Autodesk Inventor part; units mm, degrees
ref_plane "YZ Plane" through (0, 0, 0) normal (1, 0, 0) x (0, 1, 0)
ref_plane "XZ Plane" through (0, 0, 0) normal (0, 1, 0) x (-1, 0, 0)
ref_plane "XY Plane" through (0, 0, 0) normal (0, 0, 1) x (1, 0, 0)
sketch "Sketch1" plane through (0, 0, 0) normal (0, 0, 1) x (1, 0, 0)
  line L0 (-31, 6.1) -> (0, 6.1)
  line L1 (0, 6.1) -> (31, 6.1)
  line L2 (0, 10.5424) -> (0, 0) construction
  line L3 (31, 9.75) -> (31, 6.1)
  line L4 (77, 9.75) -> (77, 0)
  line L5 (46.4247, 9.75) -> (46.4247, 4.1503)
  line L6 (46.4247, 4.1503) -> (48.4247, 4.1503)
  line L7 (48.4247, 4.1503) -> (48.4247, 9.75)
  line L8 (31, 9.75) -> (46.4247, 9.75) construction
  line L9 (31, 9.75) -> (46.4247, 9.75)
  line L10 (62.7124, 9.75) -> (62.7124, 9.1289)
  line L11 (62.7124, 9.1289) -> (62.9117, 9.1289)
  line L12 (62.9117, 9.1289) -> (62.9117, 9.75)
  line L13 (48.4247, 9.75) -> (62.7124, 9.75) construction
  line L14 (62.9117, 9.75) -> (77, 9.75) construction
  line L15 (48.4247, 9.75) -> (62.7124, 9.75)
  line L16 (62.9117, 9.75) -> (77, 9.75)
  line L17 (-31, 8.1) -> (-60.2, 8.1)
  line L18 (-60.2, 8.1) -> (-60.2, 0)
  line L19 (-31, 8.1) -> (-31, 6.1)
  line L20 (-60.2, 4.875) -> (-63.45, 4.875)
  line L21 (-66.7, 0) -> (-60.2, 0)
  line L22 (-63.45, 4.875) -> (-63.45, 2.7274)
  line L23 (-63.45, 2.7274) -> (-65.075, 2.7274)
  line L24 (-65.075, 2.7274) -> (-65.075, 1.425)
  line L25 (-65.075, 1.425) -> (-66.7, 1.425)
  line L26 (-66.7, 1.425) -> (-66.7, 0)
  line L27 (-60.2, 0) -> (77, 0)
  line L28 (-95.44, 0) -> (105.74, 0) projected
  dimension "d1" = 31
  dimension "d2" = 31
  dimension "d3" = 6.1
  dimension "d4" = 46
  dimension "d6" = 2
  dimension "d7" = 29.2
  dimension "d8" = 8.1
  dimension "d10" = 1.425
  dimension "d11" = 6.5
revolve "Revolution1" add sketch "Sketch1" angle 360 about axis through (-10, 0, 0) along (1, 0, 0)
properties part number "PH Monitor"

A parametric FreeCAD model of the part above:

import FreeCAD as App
import Part
import Sketcher
from FreeCAD import Vector

doc = App.newDocument("Part")
body = doc.addObject("PartDesign::Body", "Body")

# Sketch on XY plane
sketch1 = doc.addObject("Sketcher::SketchObject", "Sketch")
body.addObject(sketch1)
sketch1.AttachmentSupport = (doc.XY_Plane, [""])
sketch1.MapMode = "FlatFace"
sketch1.addGeometry([
    Part.LineSegment(Vector(-31, 6.1, 0), Vector(-31, 8.1, 0)),  # 0
    Part.LineSegment(Vector(-31, 8.1, 0), Vector(-60.2, 8.1, 0)),  # 1
    Part.LineSegment(Vector(-60.2, 8.1, 0), Vector(-60.2, 4.875, 0)),  # 2
    Part.LineSegment(Vector(-60.2, 4.875, 0), Vector(-63.45, 4.875, 0)),  # 3
    Part.LineSegment(Vector(-63.45, 4.875, 0), Vector(-63.45, 2.7274, 0)),  # 4
    Part.LineSegment(Vector(-63.45, 2.7274, 0), Vector(-65.075, 2.7274, 0)),  # 5
    Part.LineSegment(Vector(-65.075, 2.7274, 0), Vector(-65.075, 1.425, 0)),  # 6
    Part.LineSegment(Vector(-65.075, 1.425, 0), Vector(-66.7, 1.425, 0)),  # 7
    Part.LineSegment(Vector(-66.7, 1.425, 0), Vector(-66.7, 0, 0)),  # 8
    Part.LineSegment(Vector(-66.7, 0, 0), Vector(77, 0, 0)),  # 9
    Part.LineSegment(Vector(77, 0, 0), Vector(77, 9.75, 0)),  # 10
    Part.LineSegment(Vector(77, 9.75, 0), Vector(62.9117, 9.75, 0)),  # 11
    Part.LineSegment(Vector(62.9117, 9.75, 0), Vector(62.9117, 9.1289, 0)),  # 12
    Part.LineSegment(Vector(62.9117, 9.1289, 0), Vector(62.7124, 9.1289, 0)),  # 13
    Part.LineSegment(Vector(62.7124, 9.1289, 0), Vector(62.7124, 9.75, 0)),  # 14
    Part.LineSegment(Vector(62.7124, 9.75, 0), Vector(48.4247, 9.75, 0)),  # 15
    Part.LineSegment(Vector(48.4247, 9.75, 0), Vector(48.4247, 4.1503, 0)),  # 16
    Part.LineSegment(Vector(48.4247, 4.1503, 0), Vector(46.4247, 4.1503, 0)),  # 17
    Part.LineSegment(Vector(46.4247, 4.1503, 0), Vector(46.4247, 9.75, 0)),  # 18
    Part.LineSegment(Vector(46.4247, 9.75, 0), Vector(31, 9.75, 0)),  # 19
    Part.LineSegment(Vector(31, 9.75, 0), Vector(31, 6.1, 0)),  # 20
    Part.LineSegment(Vector(31, 6.1, 0), Vector(-31, 6.1, 0)),  # 21
], False)
sketch1.addConstraint([
    Sketcher.Constraint("Coincident", 0, 2, 1, 1),
    Sketcher.Constraint("Coincident", 1, 2, 2, 1),
    Sketcher.Constraint("Coincident", 2, 2, 3, 1),
    Sketcher.Constraint("Coincident", 3, 2, 4, 1),
    Sketcher.Constraint("Coincident", 4, 2, 5, 1),
    Sketcher.Constraint("Coincident", 5, 2, 6, 1),
    Sketcher.Constraint("Coincident", 6, 2, 7, 1),
    Sketcher.Constraint("Coincident", 7, 2, 8, 1),
    Sketcher.Constraint("Coincident", 8, 2, 9, 1),
    Sketcher.Constraint("Coincident", 9, 2, 10, 1),
    Sketcher.Constraint("Coincident", 10, 2, 11, 1),
    Sketcher.Constraint("Coincident", 11, 2, 12, 1),
    Sketcher.Constraint("Coincident", 12, 2, 13, 1),
    Sketcher.Constraint("Coincident", 13, 2, 14, 1),
    Sketcher.Constraint("Coincident", 14, 2, 15, 1),
    Sketcher.Constraint("Coincident", 15, 2, 16, 1),
    Sketcher.Constraint("Coincident", 16, 2, 17, 1),
    Sketcher.Constraint("Coincident", 17, 2, 18, 1),
    Sketcher.Constraint("Coincident", 18, 2, 19, 1),
    Sketcher.Constraint("Coincident", 19, 2, 20, 1),
    Sketcher.Constraint("Coincident", 20, 2, 21, 1),
    Sketcher.Constraint("Coincident", 21, 2, 0, 1),
    Sketcher.Constraint("Vertical", 0),
    Sketcher.Constraint("Horizontal", 1),
    Sketcher.Constraint("Vertical", 2),
    Sketcher.Constraint("Horizontal", 3),
    Sketcher.Constraint("Vertical", 4),
    Sketcher.Constraint("Horizontal", 5),
    Sketcher.Constraint("Vertical", 6),
    Sketcher.Constraint("Horizontal", 7),
    Sketcher.Constraint("Vertical", 8),
    Sketcher.Constraint("Horizontal", 9),
    Sketcher.Constraint("Vertical", 10),
    Sketcher.Constraint("Horizontal", 11),
    Sketcher.Constraint("Vertical", 12),
    Sketcher.Constraint("Horizontal", 13),
    Sketcher.Constraint("Vertical", 14),
    Sketcher.Constraint("Horizontal", 15),
    Sketcher.Constraint("Vertical", 16),
    Sketcher.Constraint("Horizontal", 17),
    Sketcher.Constraint("Vertical", 18),
    Sketcher.Constraint("Horizontal", 19),
    Sketcher.Constraint("Vertical", 20),
    Sketcher.Constraint("Horizontal", 21),
    Sketcher.Constraint("PointOnObject", 8, 2, -1),
    Sketcher.Constraint("Horizontal", 11, 2, 14, 2),
    Sketcher.Constraint("Horizontal", 15, 2, 18, 2),
    Sketcher.Constraint("Equal", 5, 7),
    Sketcher.Constraint("Equal", 17, 0),
    Sketcher.Constraint("DistanceX", 17, 2, 17, 1, 2.0),
    Sketcher.Constraint("DistanceX", 1, 2, 1, 1, 29.2),
    Sketcher.Constraint("DistanceX", 0, 2, -1, 1, 31.0),
    Sketcher.Constraint("DistanceX", -1, 1, 19, 2, 31.0),
    Sketcher.Constraint("DistanceY", -1, 1, 0, 2, 8.1),
    Sketcher.Constraint("DistanceX", 7, 2, 2, 2, 6.5),
    Sketcher.Constraint("DistanceY", 8, 2, 8, 1, 1.425),
    Sketcher.Constraint("DistanceX", 9, 1, 9, 2, 143.7),
    Sketcher.Constraint("DistanceX", 3, 2, 3, 1, 3.25),
    Sketcher.Constraint("DistanceY", 10, 1, 10, 2, 9.75),
    Sketcher.Constraint("DistanceY", 2, 2, 2, 1, 3.225),
    Sketcher.Constraint("DistanceY", 12, 2, 12, 1, 0.621),
    Sketcher.Constraint("DistanceX", 11, 2, 11, 1, 14.0883),
    Sketcher.Constraint("DistanceX", 13, 2, 13, 1, 0.1993),
    Sketcher.Constraint("DistanceX", 15, 2, 15, 1, 14.2877),
    Sketcher.Constraint("DistanceY", 4, 2, 4, 1, 2.1476),
    Sketcher.Constraint("DistanceY", 16, 2, 16, 1, 5.5997),
])
revolution = doc.addObject("PartDesign::Revolution", "Revolution")
body.addObject(revolution)
revolution.Profile = sketch1
revolution.ReferenceAxis = (sketch1, ["H_Axis"])
revolution.Angle = 360

doc.recompute()
